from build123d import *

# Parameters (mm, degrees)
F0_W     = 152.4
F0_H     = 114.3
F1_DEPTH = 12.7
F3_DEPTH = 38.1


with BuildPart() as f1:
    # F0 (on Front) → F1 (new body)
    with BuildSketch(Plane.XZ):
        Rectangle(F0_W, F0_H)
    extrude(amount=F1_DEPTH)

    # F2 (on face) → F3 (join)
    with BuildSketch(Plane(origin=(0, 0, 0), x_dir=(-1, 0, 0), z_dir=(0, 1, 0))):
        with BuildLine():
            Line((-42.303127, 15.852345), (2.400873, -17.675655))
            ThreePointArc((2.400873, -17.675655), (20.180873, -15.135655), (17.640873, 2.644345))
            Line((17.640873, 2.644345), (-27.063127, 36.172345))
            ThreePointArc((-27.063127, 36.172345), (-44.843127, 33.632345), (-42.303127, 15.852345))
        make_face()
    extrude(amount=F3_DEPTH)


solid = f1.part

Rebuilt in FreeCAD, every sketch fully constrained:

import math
import FreeCAD as App
import Part
import Sketcher
from FreeCAD import Vector
Q = App.Units.Quantity

doc = App.newDocument("Part")
body = doc.addObject("PartDesign::Body", "Body")

sketch1 = body.newObject("Sketcher::SketchObject", "Sketch")
sketch1.AttachmentSupport = (doc.getObject("XZ_Plane"), [""])
sketch1.MapMode = "FlatFace"
sketch1.addGeometry([
    Part.LineSegment(Vector(-76, 57, 0), Vector(-76, -57, 0)),
    Part.LineSegment(Vector(-76, -57, 0), Vector(76, -57, 0)),
    Part.LineSegment(Vector(76, -57, 0), Vector(76, 57, 0)),
    Part.LineSegment(Vector(76, 57, 0), Vector(-76, 57, 0)),
], False)
sketch1.addConstraint([
    Sketcher.Constraint("Coincident", 0, 2, 1, 1),
    Sketcher.Constraint("Coincident", 1, 2, 2, 1),
    Sketcher.Constraint("Coincident", 2, 2, 3, 1),
    Sketcher.Constraint("Coincident", 3, 2, 0, 1),
    Sketcher.Constraint("Vertical", 0),
    Sketcher.Constraint("Horizontal", 1),
    Sketcher.Constraint("Vertical", 2),
    Sketcher.Constraint("Horizontal", 3),
    Sketcher.Constraint("Symmetric", 0, 2, 2, 2, -1, 1),
    Sketcher.Constraint("DistanceX", 1, 1, 1, 2, Q("6 in")),
    Sketcher.Constraint("DistanceY", 0, 2, 0, 1, Q("4.5 in")),
])
pad1 = body.newObject("PartDesign::Pad", "Pad")
pad1.Profile = sketch1
pad1.Length = Q("0.5 in")

sketch2 = body.newObject("Sketcher::SketchObject", "Sketch001")
sketch2.AttachmentSupport = (doc.getObject("XZ_Plane"), [""])
sketch2.MapMode = "FlatFace"
sketch2.addGeometry([
    Part.LineSegment(Vector(42, 16, 0), Vector(-2, -18, 0)),
    Part.ArcOfCircle(Part.Circle(Vector(-10, -8, 0), Vector(0, 0, 1), 13), math.radians(127), math.radians(307)),
    Part.LineSegment(Vector(-18, 3, 0), Vector(27, 36, 0)),
    Part.ArcOfCircle(Part.Circle(Vector(35, 26, 0), Vector(0, 0, 1), 13), math.radians(-53), math.radians(127)),
], False)
sketch2.addConstraint([
    Sketcher.Constraint("Tangent", 0, 2, 1, 2),
    Sketcher.Constraint("Tangent", 1, 1, 2, 1),
    Sketcher.Constraint("Tangent", 2, 2, 3, 2),
    Sketcher.Constraint("Tangent", 3, 1, 0, 1),
    Sketcher.Constraint("Equal", 1, 3),
    Sketcher.Constraint("Radius", 1, Q("0.5 in")),
    Sketcher.Constraint("Distance", 0, Q("2.2 in")),
    Sketcher.Constraint("DistanceX", 1, 3, 0, 2, Q("0.3 in")),
    Sketcher.Constraint("DistanceX", 1, 3, -1, 1, Q("10.020873 mm")),
    Sketcher.Constraint("DistanceY", 1, 3, -1, 1, Q("7.515655 mm")),
])
pad2 = body.newObject("PartDesign::Pad", "Pad001")
pad2.Profile = sketch2
pad2.Length = Q("1.5 in")
pad2.Reversed = True

doc.recompute()
